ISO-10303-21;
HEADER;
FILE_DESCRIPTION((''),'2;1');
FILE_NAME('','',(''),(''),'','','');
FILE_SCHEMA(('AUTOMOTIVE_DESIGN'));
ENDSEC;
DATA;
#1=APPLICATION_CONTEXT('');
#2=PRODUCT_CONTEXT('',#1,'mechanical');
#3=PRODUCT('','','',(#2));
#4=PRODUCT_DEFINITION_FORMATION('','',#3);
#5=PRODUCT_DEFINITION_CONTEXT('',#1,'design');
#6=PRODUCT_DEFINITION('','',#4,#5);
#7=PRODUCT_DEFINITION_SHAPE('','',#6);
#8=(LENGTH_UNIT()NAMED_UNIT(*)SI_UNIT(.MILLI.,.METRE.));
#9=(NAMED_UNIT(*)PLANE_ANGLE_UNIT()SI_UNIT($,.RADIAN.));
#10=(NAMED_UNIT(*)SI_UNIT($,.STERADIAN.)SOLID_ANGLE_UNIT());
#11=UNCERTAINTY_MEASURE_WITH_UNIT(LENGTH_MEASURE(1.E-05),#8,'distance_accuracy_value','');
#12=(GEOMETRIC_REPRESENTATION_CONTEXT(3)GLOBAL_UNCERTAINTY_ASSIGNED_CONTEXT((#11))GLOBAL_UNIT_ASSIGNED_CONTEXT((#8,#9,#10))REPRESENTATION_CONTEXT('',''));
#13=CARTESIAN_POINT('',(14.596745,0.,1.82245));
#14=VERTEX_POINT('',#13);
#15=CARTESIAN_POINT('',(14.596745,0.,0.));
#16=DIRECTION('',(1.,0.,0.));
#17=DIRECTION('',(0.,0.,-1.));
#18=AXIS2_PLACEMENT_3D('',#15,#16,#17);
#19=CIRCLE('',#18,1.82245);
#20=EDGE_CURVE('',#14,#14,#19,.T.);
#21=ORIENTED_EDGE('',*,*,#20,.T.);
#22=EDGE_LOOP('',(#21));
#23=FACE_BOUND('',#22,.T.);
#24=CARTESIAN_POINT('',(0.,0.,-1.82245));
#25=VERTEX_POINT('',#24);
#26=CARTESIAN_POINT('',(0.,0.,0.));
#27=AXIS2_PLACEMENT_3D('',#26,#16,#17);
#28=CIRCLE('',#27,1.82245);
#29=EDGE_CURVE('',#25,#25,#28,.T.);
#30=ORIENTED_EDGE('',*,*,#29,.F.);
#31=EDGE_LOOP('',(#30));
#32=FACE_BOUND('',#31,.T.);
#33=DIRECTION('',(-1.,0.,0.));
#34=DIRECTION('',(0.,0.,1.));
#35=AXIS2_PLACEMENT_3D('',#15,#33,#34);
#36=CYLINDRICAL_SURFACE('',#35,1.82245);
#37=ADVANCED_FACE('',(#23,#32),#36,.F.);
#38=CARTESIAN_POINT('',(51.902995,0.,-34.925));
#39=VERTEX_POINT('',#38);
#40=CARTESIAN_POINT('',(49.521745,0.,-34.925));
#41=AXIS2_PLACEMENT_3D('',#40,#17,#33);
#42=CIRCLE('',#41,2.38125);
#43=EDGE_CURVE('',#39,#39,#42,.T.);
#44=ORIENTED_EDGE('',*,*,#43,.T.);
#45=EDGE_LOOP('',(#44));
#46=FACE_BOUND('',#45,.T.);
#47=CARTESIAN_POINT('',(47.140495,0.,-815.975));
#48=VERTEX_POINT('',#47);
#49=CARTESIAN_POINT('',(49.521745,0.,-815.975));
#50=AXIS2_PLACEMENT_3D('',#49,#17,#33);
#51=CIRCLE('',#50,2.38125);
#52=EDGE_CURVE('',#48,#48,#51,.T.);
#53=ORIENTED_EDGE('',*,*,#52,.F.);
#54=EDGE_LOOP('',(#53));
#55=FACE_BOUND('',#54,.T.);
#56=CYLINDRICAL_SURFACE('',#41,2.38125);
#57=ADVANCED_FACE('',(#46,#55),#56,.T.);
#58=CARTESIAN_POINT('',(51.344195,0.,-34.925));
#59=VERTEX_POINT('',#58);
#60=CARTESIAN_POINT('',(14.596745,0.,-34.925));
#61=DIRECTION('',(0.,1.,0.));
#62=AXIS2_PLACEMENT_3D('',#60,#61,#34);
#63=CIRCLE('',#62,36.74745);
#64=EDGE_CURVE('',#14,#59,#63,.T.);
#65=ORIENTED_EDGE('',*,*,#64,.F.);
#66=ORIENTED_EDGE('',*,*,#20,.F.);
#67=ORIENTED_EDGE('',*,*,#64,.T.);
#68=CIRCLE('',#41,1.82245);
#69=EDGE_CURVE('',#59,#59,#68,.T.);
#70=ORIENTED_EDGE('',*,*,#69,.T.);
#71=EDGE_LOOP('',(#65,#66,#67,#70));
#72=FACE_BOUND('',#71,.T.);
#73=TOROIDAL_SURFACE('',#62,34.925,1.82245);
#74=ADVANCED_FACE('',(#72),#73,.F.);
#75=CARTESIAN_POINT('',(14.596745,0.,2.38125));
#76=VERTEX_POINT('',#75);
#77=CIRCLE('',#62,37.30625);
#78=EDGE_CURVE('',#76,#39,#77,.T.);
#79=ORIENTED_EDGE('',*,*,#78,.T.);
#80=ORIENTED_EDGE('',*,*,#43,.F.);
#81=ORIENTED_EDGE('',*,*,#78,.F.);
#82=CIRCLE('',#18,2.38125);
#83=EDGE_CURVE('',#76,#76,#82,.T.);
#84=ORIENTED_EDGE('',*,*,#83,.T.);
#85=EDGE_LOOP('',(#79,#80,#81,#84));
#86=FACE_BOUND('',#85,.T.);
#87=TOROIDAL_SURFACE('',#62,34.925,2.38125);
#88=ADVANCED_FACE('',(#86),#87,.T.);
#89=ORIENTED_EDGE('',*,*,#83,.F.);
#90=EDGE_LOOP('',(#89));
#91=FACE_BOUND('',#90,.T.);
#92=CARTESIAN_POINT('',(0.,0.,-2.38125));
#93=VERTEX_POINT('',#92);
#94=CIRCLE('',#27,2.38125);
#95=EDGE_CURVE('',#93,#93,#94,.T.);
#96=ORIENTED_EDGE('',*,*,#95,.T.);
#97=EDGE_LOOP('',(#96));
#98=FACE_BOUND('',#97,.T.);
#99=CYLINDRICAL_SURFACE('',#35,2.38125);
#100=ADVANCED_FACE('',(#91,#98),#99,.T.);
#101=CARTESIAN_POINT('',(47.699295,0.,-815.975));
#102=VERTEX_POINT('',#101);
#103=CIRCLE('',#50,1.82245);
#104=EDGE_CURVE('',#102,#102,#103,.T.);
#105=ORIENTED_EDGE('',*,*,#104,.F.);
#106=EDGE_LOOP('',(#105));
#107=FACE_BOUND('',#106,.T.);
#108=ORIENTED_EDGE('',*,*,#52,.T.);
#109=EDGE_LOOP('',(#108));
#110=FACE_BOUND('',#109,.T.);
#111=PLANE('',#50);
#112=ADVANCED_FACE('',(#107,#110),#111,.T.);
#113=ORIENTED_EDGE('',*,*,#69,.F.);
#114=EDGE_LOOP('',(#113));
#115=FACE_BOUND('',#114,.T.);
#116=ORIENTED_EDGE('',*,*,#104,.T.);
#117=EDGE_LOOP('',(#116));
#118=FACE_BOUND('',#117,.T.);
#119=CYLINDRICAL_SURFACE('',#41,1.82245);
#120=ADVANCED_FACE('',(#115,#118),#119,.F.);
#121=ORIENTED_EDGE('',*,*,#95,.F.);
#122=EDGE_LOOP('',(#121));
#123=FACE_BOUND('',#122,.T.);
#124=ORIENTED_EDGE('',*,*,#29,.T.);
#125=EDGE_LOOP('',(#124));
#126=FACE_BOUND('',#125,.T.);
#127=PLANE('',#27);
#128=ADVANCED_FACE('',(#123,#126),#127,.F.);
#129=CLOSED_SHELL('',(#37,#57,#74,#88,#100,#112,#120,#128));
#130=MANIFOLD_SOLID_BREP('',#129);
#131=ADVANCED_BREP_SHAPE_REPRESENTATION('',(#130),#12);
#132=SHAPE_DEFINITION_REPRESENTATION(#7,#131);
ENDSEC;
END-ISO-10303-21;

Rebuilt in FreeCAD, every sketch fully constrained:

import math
import FreeCAD as App
import Part
import Sketcher
from FreeCAD import Vector
Q = App.Units.Quantity

doc = App.newDocument("Part")
params = doc.addObject("Spreadsheet::Sheet", "Params")
for row, (alias, value) in enumerate([
    ("sketch1_diameter", "0.1875 in"),
    ("sketch2_radius", "1.375 in"),
    ("sketch2_height", "30.75 in"),
], start=1):
    params.set(f"A{row}", alias)
    params.set(f"B{row}", "=" + value)
    params.setAlias(f"B{row}", alias)

body = doc.addObject("PartDesign::Body", "Body")

sketch1 = body.newObject("Sketcher::SketchObject", "Sketch")
sketch1.AttachmentSupport = (doc.getObject("YZ_Plane"), [""])
sketch1.MapMode = "FlatFace"
sketch1.addGeometry([
    Part.Circle(Vector(0, 0, 0), Vector(0, 0, 1), 2.38125),
    Part.Circle(Vector(0, 0, 0), Vector(0, 0, 1), 1.82245),
], False)
sketch1.addConstraint([
    Sketcher.Constraint("Coincident", 0, 3, -1, 1),
    Sketcher.Constraint("Coincident", 1, 3, -1, 1),
    Sketcher.Constraint("Diameter", 0, Q("0.1875 in")),
    Sketcher.Constraint("Diameter", 1, Q("0.1435 in")),
])
sketch1.setExpression("Constraints[2]", "Params.sketch1_diameter")

sketch2 = body.newObject("Sketcher::SketchObject", "Sketch001")
sketch2.AttachmentSupport = (doc.getObject("XZ_Plane"), [""])
sketch2.MapMode = "FlatFace"
sketch2.addGeometry([
    Part.LineSegment(Vector(49.521745, -815.975, 0), Vector(49.521745, -34.925, 0)),
    Part.ArcOfCircle(Part.Circle(Vector(14.596745, -34.925, 0), Vector(0, 0, 1), 34.925), math.radians(0), math.radians(90)),
    Part.LineSegment(Vector(14.596745, 0, 0), Vector(0, 0, 0)),
], False)
sketch2.addConstraint([
    Sketcher.Constraint("Tangent", 0, 2, 1, 1),
    Sketcher.Constraint("Tangent", 1, 2, 2, 1),
    Sketcher.Constraint("Vertical", 0),
    Sketcher.Constraint("Horizontal", 2),
    Sketcher.Constraint("Coincident", 2, 2, -1, 1),
    Sketcher.Constraint("Radius", 1, Q("1.375 in")),
    Sketcher.Constraint("DistanceY", 0, 1, 0, 2, Q("30.75 in")),
    Sketcher.Constraint("DistanceX", 2, 2, 2, 1, Q("14.596745 mm")),
])
sketch2.setExpression("Constraints[5]", "Params.sketch2_radius")
sketch2.setExpression("Constraints[6]", "Params.sketch2_height")
doc.recompute()

additivepipe = body.newObject("PartDesign::AdditivePipe", "AdditivePipe")
additivepipe.Profile = sketch1
additivepipe.Spine = (sketch2, ["Edge1", "Edge2", "Edge3"])

doc.recompute()
